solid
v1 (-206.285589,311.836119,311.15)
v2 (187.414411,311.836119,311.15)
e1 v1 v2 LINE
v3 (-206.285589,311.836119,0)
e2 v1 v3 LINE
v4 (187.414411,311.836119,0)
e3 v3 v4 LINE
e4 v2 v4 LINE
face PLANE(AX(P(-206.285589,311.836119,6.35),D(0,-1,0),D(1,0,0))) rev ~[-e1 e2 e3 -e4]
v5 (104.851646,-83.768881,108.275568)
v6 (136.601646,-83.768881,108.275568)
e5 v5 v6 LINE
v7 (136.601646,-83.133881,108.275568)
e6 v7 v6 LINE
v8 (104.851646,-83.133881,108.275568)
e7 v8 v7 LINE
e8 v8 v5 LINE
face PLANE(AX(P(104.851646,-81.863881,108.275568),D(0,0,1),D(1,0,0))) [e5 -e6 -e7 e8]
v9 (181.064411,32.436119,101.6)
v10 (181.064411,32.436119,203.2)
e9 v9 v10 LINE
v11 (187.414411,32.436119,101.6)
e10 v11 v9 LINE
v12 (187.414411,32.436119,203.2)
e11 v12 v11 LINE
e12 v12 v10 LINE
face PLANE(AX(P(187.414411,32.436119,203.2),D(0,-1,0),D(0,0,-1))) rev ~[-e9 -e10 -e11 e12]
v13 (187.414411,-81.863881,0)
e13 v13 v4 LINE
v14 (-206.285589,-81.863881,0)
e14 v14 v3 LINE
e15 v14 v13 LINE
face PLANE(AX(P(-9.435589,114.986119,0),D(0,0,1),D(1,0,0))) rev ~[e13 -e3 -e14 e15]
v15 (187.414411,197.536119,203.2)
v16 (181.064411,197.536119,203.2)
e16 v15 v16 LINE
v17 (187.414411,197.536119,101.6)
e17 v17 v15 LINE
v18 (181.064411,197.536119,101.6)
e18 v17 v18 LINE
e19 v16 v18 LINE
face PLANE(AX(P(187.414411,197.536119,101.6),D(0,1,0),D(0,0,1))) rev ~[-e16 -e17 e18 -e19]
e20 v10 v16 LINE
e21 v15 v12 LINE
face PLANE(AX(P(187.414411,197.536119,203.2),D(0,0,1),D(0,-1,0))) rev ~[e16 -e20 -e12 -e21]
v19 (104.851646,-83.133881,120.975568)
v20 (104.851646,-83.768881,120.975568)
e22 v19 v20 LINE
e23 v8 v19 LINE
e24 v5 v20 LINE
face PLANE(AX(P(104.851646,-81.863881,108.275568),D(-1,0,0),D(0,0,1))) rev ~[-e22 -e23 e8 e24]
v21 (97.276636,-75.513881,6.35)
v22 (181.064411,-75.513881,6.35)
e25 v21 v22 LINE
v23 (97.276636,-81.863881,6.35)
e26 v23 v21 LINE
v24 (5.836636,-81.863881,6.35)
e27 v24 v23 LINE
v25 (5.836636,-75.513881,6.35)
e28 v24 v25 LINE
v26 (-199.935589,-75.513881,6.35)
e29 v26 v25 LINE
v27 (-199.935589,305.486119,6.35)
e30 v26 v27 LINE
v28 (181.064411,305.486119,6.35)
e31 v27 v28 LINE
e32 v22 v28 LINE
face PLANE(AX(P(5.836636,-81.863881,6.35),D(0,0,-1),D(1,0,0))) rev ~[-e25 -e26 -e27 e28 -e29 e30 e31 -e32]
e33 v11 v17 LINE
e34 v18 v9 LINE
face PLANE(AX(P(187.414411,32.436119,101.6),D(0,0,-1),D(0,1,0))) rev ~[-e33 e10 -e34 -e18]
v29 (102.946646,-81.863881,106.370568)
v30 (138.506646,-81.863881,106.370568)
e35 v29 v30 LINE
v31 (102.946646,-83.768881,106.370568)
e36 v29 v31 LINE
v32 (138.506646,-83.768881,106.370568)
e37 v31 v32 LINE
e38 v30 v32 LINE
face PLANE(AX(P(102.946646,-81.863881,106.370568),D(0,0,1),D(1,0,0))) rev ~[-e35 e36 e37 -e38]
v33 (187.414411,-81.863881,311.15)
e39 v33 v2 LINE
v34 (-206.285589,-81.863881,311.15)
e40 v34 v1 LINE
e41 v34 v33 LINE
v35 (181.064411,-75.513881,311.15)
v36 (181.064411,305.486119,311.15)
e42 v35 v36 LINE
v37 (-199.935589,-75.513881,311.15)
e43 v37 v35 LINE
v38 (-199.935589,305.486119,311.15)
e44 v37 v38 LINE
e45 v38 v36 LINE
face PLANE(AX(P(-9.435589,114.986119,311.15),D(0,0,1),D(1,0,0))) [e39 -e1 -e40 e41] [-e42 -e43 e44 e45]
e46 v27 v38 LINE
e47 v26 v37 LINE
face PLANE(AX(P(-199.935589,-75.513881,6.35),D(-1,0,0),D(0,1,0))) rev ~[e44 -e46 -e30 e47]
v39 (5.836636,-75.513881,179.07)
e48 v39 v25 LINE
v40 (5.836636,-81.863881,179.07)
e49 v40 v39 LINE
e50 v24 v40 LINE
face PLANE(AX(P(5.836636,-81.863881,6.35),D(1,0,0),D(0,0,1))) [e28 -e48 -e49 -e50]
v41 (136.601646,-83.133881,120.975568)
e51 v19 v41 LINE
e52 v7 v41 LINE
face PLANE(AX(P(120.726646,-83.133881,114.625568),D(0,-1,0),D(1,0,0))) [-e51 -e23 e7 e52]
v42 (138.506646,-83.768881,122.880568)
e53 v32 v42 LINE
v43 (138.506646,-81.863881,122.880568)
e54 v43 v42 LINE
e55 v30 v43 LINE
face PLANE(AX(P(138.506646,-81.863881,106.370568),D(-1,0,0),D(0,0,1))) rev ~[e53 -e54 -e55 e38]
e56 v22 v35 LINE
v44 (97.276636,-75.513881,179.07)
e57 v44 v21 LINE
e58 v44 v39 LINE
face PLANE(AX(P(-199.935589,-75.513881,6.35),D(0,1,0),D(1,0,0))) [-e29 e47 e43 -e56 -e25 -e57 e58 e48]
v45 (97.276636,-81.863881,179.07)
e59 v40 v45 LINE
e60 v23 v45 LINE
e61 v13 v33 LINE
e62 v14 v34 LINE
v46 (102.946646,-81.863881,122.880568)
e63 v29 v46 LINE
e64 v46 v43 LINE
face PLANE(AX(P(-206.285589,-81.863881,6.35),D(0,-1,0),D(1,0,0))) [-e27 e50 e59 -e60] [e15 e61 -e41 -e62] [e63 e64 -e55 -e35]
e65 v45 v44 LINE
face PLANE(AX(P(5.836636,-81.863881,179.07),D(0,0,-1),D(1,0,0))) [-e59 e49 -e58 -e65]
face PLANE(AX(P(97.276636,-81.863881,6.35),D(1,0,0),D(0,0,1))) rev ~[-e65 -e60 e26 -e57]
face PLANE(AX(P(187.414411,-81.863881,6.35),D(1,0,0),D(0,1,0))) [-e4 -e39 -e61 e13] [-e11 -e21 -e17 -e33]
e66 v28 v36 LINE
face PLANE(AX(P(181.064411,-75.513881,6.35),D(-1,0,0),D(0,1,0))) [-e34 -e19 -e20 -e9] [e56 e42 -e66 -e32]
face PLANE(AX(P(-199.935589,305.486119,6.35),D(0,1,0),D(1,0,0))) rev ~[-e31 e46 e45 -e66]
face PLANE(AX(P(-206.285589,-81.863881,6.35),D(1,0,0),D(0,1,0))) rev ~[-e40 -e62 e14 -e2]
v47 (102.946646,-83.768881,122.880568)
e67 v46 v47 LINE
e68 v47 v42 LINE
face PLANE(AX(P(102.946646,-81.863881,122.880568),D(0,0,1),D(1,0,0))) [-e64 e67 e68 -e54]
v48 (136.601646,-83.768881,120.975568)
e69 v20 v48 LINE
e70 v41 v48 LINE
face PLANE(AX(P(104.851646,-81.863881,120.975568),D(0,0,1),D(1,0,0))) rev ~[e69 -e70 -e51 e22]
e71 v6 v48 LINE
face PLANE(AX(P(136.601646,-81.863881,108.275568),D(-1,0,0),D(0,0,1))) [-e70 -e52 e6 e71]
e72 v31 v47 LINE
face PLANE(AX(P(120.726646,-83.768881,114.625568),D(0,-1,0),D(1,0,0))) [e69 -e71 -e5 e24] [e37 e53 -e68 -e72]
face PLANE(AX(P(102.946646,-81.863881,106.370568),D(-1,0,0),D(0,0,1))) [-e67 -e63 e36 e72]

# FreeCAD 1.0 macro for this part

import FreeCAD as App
import Part
import Sketcher
Q = App.Units.Quantity


def add_polygon(sketch, points):
    """Adds a closed chain of lines whose ends are joined by coincident constraints."""
    first, n = sketch.GeometryCount, len(points)
    for a, b in zip(points, points[1:] + points[:1]):
        sketch.addGeometry(Part.LineSegment(App.Vector(*a, 0), App.Vector(*b, 0)), False)
    for i in range(n):
        sketch.addConstraint(Sketcher.Constraint("Coincident", first + i, 2, first + (i + 1) % n, 1))

doc = App.newDocument("Part")
body = doc.addObject("PartDesign::Body", "Body")

# Sketch on XY plane
sketch1 = body.newObject("Sketcher::SketchObject", "Sketch")
sketch1.AttachmentSupport = (doc.getObject("XY_Plane"), [""])
sketch1.MapMode = "FlatFace"
add_polygon(sketch1, [(-200, 305), (-200, -76), (181, -76), (181, 305)])  # lines 0-3
sketch1.addConstraint([
    Sketcher.Constraint("Vertical", 0),
    Sketcher.Constraint("Horizontal", 1),
    Sketcher.Constraint("Vertical", 2),
    Sketcher.Constraint("Horizontal", 3),
    Sketcher.Constraint("Equal", 3, 0),
    Sketcher.Constraint("DistanceX", 1, 1, 1, 2, Q("15 in")),
    Sketcher.Constraint("DistanceX", 0, 2, -1, 1, Q("199.935589 mm")),
    Sketcher.Constraint("DistanceY", 0, 2, -1, 1, Q("75.513881 mm")),
])
pad1 = body.newObject("PartDesign::Pad", "Pad")
pad1.Profile = sketch1
pad1.Length = Q("0.25 in")

# Sketch on XY plane
sketch2 = body.newObject("Sketcher::SketchObject", "Sketch001")
sketch2.AttachmentSupport = (doc.getObject("XY_Plane"), [""])
sketch2.MapMode = "FlatFace"
sketch2.AttachmentOffset = App.Placement(App.Vector(0, 0, 0.25 * 25.4), App.Rotation())
add_polygon(sketch2, [(-206, 312), (-206, -82), (187, -82), (187, 312)])  # lines 0-3
add_polygon(sketch2, [(181, -76), (-200, -76), (-200, 305), (181, 305)])  # lines 4-7
sketch2.addConstraint([
    Sketcher.Constraint("Vertical", 0),
    Sketcher.Constraint("Horizontal", 1),
    Sketcher.Constraint("Vertical", 2),
    Sketcher.Constraint("Horizontal", 3),
    Sketcher.Constraint("Horizontal", 4),
    Sketcher.Constraint("Vertical", 5),
    Sketcher.Constraint("Horizontal", 6),
    Sketcher.Constraint("Vertical", 7),
    Sketcher.Constraint("Equal", 3, 0),
    Sketcher.Constraint("Equal", 6, 5),
    Sketcher.Constraint("DistanceX", 4, 2, 4, 1, Q("15 in")),
    Sketcher.Constraint("DistanceX", 1, 1, 1, 2, Q("15.5 in")),
    Sketcher.Constraint("DistanceX", 0, 2, 4, 2, Q("0.25 in")),
    Sketcher.Constraint("DistanceY", 0, 2, 4, 2, Q("0.25 in")),
    Sketcher.Constraint("DistanceX", 0, 2, -1, 1, Q("206.285589 mm")),
    Sketcher.Constraint("DistanceY", 0, 2, -1, 1, Q("81.863881 mm")),
])
pad2 = body.newObject("PartDesign::Pad", "Pad001")
pad2.Profile = sketch2
pad2.Type = "TwoLengths"
pad2.Length = Q("12 in")
pad2.Length2 = Q("0.25 in")

# Sketch on XZ plane
sketch3 = body.newObject("Sketcher::SketchObject", "Sketch002")
sketch3.AttachmentSupport = (doc.getObject("XZ_Plane"), [""])
sketch3.MapMode = "FlatFace"
sketch3.AttachmentOffset = App.Placement(App.Vector(0, 0, 81.863881), App.Rotation())
add_polygon(sketch3, [(6, 179), (6, 6), (97, 6), (97, 179)])  # lines 0-3
sketch3.addConstraint([
    Sketcher.Constraint("Vertical", 0),
    Sketcher.Constraint("Horizontal", 1),
    Sketcher.Constraint("Vertical", 2),
    Sketcher.Constraint("Horizontal", 3),
    Sketcher.Constraint("DistanceX", 1, 1, 1, 2, Q("3.6 in")),
    Sketcher.Constraint("DistanceY", 0, 2, 0, 1, Q("6.8 in")),
    Sketcher.Constraint("DistanceY", -1, 1, 0, 2, Q("0.25 in")),
    Sketcher.Constraint("DistanceX", -1, 1, 0, 2, Q("5.836636 mm")),
])
pocket1 = body.newObject("PartDesign::Pocket", "Pocket")
pocket1.Profile = sketch3
pocket1.Length = Q("1 in")

# Sketch on YZ plane
sketch4 = body.newObject("Sketcher::SketchObject", "Sketch003")
sketch4.AttachmentSupport = (doc.getObject("YZ_Plane"), [""])
sketch4.MapMode = "FlatFace"
sketch4.AttachmentOffset = App.Placement(App.Vector(0, 0, 187.414411), App.Rotation())
add_polygon(sketch4, [(198, 203), (32, 203), (32, 102), (198, 102)])  # lines 0-3
sketch4.addConstraint([
    Sketcher.Constraint("Horizontal", 0),
    Sketcher.Constraint("Vertical", 1),
    Sketcher.Constraint("Horizontal", 2),
    Sketcher.Constraint("Vertical", 3),
    Sketcher.Constraint("DistanceY", 1, 2, 1, 1, Q("4 in")),
    Sketcher.Constraint("DistanceX", 0, 2, 0, 1, Q("6.5 in")),
    Sketcher.Constraint("DistanceY", -1, 1, 0, 2, Q("8 in")),
    Sketcher.Constraint("DistanceX", -1, 1, 0, 2, Q("32.436119 mm")),
])
pocket2 = body.newObject("PartDesign::Pocket", "Pocket001")
pocket2.Profile = sketch4
pocket2.Length = Q("1 in")

# Sketch on XZ plane
sketch5 = body.newObject("Sketcher::SketchObject", "Sketch004")
sketch5.AttachmentSupport = (doc.getObject("XZ_Plane"), [""])
sketch5.MapMode = "FlatFace"
sketch5.AttachmentOffset = App.Placement(App.Vector(0, 0, 81.863881), App.Rotation())
add_polygon(sketch5, [(105, 121), (105, 108), (137, 108), (137, 121)])  # lines 0-3
sketch5.addConstraint([
    Sketcher.Constraint("Vertical", 0),
    Sketcher.Constraint("Horizontal", 1),
    Sketcher.Constraint("Vertical", 2),
    Sketcher.Constraint("Horizontal", 3),
    Sketcher.Constraint("DistanceY", 0, 2, 0, 1, Q("0.5 in")),
    Sketcher.Constraint("DistanceX", 1, 1, 1, 2, Q("1.25 in")),
    Sketcher.Constraint("DistanceY", -1, 1, 0, 2, Q("108.275568 mm")),
    Sketcher.Constraint("DistanceX", -1, 1, 0, 2, Q("104.851646 mm")),
])
pad3 = body.newObject("PartDesign::Pad", "Pad002")
pad3.Profile = sketch5
pad3.Length = Q("0.05 in")

# Sketch on XZ plane
sketch6 = body.newObject("Sketcher::SketchObject", "Sketch005")
sketch6.AttachmentSupport = (doc.getObject("XZ_Plane"), [""])
sketch6.MapMode = "FlatFace"
sketch6.AttachmentOffset = App.Placement(App.Vector(0, 0, 81.863881), App.Rotation())
add_polygon(sketch6, [(103, 123), (103, 106), (139, 106), (139, 123)])  # lines 0-3
add_polygon(sketch6, [(137, 108), (105, 108), (105, 121), (137, 121)])  # lines 4-7
sketch6.addConstraint([
    Sketcher.Constraint("Vertical", 0),
    Sketcher.Constraint("Horizontal", 1),
    Sketcher.Constraint("Vertical", 2),
    Sketcher.Constraint("Horizontal", 3),
    Sketcher.Constraint("Horizontal", 4),
    Sketcher.Constraint("Vertical", 5),
    Sketcher.Constraint("Horizontal", 6),
    Sketcher.Constraint("Vertical", 7),
    Sketcher.Constraint("DistanceX", 1, 1, 1, 2, Q("1.4 in")),
    Sketcher.Constraint("DistanceY", 5, 1, 5, 2, Q("0.5 in")),
    Sketcher.Constraint("DistanceX", 4, 2, 4, 1, Q("1.25 in")),
    Sketcher.Constraint("DistanceY", 0, 2, 0, 1, Q("0.65 in")),
    Sketcher.Constraint("DistanceX", 0, 2, 4, 2, Q("0.075 in")),
    Sketcher.Constraint("DistanceY", 0, 2, 4, 2, Q("0.075 in")),
    Sketcher.Constraint("DistanceY", -1, 1, 0, 2, Q("106.370568 mm")),
    Sketcher.Constraint("DistanceX", -1, 1, 0, 2, Q("102.946646 mm")),
])
pad4 = body.newObject("PartDesign::Pad", "Pad003")
pad4.Profile = sketch6
pad4.Length = Q("0.075 in")

doc.recompute()
